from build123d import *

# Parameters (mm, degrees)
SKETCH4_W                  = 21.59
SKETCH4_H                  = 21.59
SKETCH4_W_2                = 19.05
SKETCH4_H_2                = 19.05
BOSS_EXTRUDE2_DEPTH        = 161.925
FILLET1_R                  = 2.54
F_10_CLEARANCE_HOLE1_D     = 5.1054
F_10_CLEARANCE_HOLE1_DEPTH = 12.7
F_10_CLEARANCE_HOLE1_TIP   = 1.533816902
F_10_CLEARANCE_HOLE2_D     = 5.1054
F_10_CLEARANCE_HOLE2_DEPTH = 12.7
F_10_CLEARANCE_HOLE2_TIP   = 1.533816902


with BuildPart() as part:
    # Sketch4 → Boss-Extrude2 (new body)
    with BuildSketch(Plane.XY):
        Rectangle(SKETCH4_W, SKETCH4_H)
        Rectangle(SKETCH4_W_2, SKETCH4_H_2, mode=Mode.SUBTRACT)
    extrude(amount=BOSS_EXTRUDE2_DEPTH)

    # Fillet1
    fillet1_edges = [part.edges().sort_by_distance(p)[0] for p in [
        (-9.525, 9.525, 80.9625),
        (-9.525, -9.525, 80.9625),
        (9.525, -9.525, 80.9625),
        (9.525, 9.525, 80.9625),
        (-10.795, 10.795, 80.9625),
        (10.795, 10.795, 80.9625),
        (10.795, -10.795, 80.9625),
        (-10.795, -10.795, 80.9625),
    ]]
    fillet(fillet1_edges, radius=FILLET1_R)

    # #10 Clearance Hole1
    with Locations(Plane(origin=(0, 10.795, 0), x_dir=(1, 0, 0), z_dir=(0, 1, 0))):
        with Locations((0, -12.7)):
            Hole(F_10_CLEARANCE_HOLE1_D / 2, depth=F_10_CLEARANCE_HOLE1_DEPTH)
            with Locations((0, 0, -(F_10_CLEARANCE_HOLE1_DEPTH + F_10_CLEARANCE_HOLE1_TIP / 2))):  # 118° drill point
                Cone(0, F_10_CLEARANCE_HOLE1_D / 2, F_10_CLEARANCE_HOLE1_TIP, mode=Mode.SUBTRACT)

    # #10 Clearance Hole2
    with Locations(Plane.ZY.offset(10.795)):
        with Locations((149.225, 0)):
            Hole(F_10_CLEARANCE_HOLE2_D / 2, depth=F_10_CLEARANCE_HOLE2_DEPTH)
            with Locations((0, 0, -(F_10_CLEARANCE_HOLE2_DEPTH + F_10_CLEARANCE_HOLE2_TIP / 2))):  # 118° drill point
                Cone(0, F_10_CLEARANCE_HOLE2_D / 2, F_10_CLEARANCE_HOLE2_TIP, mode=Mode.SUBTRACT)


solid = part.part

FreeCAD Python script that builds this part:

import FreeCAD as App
import Part
import Sketcher
from FreeCAD import Vector
Q = App.Units.Quantity


def edges_at(feature, points):
    """Names of the edges that pass closest to the given points."""
    edges = feature.Shape.Edges
    near = lambda p: min(range(len(edges)), key=lambda i: edges[i].distToShape(Part.Vertex(*p))[0])
    return sorted({f"Edge{near(p) + 1}" for p in points})


def add_polygon(sketch, points):
    """Adds a closed chain of lines whose ends are joined by coincident constraints."""
    first, n = sketch.GeometryCount, len(points)
    for a, b in zip(points, points[1:] + points[:1]):
        sketch.addGeometry(Part.LineSegment(App.Vector(*a, 0), App.Vector(*b, 0)), False)
    for i in range(n):
        sketch.addConstraint(Sketcher.Constraint("Coincident", first + i, 2, first + (i + 1) % n, 1))

doc = App.newDocument("Part")
body = doc.addObject("PartDesign::Body", "Body")

# Sketch on XY plane
sketch1 = body.newObject("Sketcher::SketchObject", "Sketch")
sketch1.AttachmentSupport = (doc.getObject("XY_Plane"), [""])
sketch1.MapMode = "FlatFace"
add_polygon(sketch1, [(-11, 11), (-11, -11), (11, -11), (11, 11)])  # lines 0-3
add_polygon(sketch1, [(10, -10), (-10, -10), (-10, 10), (10, 10)])  # lines 4-7
sketch1.addConstraint([
    Sketcher.Constraint("Vertical", 0),
    Sketcher.Constraint("Horizontal", 1),
    Sketcher.Constraint("Vertical", 2),
    Sketcher.Constraint("Horizontal", 3),
    Sketcher.Constraint("Horizontal", 4),
    Sketcher.Constraint("Vertical", 5),
    Sketcher.Constraint("Horizontal", 6),
    Sketcher.Constraint("Vertical", 7),
    Sketcher.Constraint("Symmetric", 0, 2, 2, 2, -1, 1),
    Sketcher.Constraint("Symmetric", 4, 2, 6, 2, -1, 1),
    Sketcher.Constraint("Equal", 3, 0),
    Sketcher.Constraint("Equal", 6, 5),
    Sketcher.Constraint("DistanceX", 1, 1, 1, 2, Q("0.85 in")),
    Sketcher.Constraint("DistanceX", 4, 2, 4, 1, Q("0.75 in")),
])
pad1 = body.newObject("PartDesign::Pad", "Pad")
pad1.Profile = sketch1
pad1.Length = Q("6.375 in")
doc.recompute()

fillet = body.newObject("PartDesign::Fillet", "Fillet")
fillet.Base = (pad1, edges_at(pad1, [
    (-9.525, 9.525, 80.963),
    (-9.525, -9.525, 80.963),
    (9.525, -9.525, 80.963),
    (9.525, 9.525, 80.963),
    (-10.795, 10.795, 80.963),
    (10.795, 10.795, 80.963),
    (10.795, -10.795, 80.963),
    (-10.795, -10.795, 80.963),
]))
fillet.Radius = Q("0.1 in")

# Sketch on XZ plane
sketch2 = body.newObject("Sketcher::SketchObject", "Sketch001")
sketch2.AttachmentSupport = (doc.getObject("XZ_Plane"), [""])
sketch2.MapMode = "FlatFace"
sketch2.AttachmentOffset = App.Placement(Vector(0, 0, -0.425 * 25.4), App.Rotation())
sketch2.addGeometry(Part.Circle(Vector(0, 12.7, 0), Vector(0, 0, 1), 2.6), False)
sketch2.addConstraint([
    Sketcher.Constraint("PointOnObject", 0, 3, -2),
    Sketcher.Constraint("Diameter", 0, Q("0.201 in")),
    Sketcher.Constraint("DistanceY", -1, 1, 0, 3, Q("0.5 in")),
])
doc.recompute()
hole = body.newObject("PartDesign::Hole", "Hole")
hole.Profile = sketch2
hole.ThreadType = "None"
hole.Diameter = Q("0.201 in")
hole.DepthType = "Dimension"
hole.Depth = Q("0.5 in")
hole.DrillPoint = "Angled"
hole.DrillPointAngle = 118
hole.Reversed = True

# Sketch on YZ plane
sketch3 = body.newObject("Sketcher::SketchObject", "Sketch002")
sketch3.AttachmentSupport = (doc.getObject("YZ_Plane"), [""])
sketch3.MapMode = "FlatFace"
sketch3.AttachmentOffset = App.Placement(Vector(0, 0, -0.425 * 25.4), App.Rotation())
sketch3.addGeometry(Part.Circle(Vector(0, 149.2, 0), Vector(0, 0, 1), 2.6), False)
sketch3.addConstraint([
    Sketcher.Constraint("PointOnObject", 0, 3, -2),
    Sketcher.Constraint("Diameter", 0, Q("0.201 in")),
    Sketcher.Constraint("DistanceY", -1, 1, 0, 3, Q("5.875 in")),
])
doc.recompute()
hole2 = body.newObject("PartDesign::Hole", "Hole001")
hole2.Profile = sketch3
hole2.ThreadType = "None"
hole2.Diameter = Q("0.201 in")
hole2.DepthType = "Dimension"
hole2.Depth = Q("0.5 in")
hole2.DrillPoint = "Angled"
hole2.DrillPointAngle = 118
hole2.Reversed = True

doc.recompute()
